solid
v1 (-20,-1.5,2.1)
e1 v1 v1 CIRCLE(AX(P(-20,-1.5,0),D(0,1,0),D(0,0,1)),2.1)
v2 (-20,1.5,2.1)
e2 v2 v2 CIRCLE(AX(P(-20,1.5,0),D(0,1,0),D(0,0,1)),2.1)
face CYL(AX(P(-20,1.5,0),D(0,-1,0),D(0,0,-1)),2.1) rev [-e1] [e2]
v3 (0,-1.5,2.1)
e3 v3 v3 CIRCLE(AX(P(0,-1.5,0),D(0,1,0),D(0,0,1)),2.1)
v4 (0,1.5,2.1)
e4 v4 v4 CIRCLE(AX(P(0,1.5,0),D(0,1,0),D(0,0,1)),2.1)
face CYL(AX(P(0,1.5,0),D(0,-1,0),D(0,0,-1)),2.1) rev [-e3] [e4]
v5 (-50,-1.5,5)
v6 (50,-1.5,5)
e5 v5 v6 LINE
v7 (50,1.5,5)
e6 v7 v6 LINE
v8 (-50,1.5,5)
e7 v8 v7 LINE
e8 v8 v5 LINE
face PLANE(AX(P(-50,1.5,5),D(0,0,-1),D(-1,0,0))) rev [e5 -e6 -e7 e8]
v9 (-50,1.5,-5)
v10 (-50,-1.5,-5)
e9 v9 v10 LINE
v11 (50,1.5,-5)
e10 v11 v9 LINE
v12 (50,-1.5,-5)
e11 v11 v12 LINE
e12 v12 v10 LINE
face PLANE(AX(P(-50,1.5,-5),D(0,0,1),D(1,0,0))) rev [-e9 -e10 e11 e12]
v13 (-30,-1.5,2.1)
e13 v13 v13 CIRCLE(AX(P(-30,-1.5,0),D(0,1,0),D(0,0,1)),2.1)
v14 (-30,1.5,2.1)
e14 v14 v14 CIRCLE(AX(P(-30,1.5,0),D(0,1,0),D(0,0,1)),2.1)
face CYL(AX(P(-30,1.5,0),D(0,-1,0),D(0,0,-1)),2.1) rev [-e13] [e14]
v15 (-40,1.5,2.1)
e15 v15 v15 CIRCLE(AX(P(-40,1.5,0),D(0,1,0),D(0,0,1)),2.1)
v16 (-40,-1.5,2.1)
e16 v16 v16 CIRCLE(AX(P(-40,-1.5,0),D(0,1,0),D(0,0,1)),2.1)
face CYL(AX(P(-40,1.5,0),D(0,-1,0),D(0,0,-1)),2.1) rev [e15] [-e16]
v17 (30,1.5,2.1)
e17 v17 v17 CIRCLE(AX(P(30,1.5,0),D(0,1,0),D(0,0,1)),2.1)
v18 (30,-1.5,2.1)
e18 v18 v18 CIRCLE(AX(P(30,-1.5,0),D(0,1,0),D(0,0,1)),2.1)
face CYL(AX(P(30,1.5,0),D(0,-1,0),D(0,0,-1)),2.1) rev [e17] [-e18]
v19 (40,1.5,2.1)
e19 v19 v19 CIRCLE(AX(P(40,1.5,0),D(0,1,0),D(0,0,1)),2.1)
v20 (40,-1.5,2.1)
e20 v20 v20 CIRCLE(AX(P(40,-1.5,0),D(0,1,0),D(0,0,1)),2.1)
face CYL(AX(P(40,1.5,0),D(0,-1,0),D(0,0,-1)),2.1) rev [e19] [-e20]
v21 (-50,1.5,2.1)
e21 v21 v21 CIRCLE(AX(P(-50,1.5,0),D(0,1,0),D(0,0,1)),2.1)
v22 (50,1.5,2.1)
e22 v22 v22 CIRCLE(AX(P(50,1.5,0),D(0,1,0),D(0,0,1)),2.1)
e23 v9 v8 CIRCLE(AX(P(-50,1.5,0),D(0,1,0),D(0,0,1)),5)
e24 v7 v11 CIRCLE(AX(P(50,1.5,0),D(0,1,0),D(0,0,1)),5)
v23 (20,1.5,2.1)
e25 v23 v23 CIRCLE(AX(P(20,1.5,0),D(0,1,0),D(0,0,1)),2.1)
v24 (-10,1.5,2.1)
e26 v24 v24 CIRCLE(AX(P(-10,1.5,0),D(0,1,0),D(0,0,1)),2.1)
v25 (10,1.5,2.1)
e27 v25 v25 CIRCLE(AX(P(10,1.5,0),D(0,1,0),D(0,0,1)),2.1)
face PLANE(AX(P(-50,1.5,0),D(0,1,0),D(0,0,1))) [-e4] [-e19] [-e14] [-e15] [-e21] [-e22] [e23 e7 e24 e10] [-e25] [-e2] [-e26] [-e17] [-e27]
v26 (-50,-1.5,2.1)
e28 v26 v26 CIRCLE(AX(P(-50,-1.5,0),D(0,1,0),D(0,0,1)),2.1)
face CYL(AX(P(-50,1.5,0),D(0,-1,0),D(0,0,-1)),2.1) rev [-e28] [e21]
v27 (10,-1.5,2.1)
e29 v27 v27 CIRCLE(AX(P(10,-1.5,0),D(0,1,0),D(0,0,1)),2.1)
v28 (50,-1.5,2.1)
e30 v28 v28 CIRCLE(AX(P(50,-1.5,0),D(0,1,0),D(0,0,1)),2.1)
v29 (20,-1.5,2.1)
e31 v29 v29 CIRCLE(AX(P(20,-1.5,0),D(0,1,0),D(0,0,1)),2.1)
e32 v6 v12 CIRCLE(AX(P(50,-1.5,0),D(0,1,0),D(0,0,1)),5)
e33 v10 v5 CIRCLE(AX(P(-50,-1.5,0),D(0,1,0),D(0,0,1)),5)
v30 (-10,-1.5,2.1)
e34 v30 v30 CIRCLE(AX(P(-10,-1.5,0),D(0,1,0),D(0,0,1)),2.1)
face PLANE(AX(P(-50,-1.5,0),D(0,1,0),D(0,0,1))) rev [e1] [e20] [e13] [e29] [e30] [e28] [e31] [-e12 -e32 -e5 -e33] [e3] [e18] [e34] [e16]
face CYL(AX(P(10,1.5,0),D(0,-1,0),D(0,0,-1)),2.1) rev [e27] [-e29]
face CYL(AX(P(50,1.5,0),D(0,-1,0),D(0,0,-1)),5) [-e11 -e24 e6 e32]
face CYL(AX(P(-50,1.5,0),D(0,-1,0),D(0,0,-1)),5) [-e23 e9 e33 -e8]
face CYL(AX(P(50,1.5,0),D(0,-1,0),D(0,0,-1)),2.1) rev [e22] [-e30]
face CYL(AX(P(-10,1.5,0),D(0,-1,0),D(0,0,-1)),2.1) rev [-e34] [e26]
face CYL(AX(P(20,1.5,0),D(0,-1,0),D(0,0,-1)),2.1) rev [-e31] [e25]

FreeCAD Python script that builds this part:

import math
import FreeCAD as App
import Part
import Sketcher
from FreeCAD import Vector
Q = App.Units.Quantity

doc = App.newDocument("Part")
body = doc.addObject("PartDesign::Body", "Body")

# Sketch on XZ plane
sketch1 = body.newObject("Sketcher::SketchObject", "Sketch")
sketch1.AttachmentSupport = (doc.getObject("XZ_Plane"), [""])
sketch1.MapMode = "FlatFace"
sketch1.addGeometry(Part.LineSegment(Vector(50, -5, 0), Vector(-50, -5, 0)), False)
sketch1.addGeometry(Part.ArcOfCircle(Part.Circle(Vector(-50, 0, 0), Vector(0, 0, 1), 5), math.radians(90), math.radians(270)), False)
sketch1.addGeometry(Part.LineSegment(Vector(-50, 5, 0), Vector(50, 5, 0)), False)
sketch1.addGeometry(Part.ArcOfCircle(Part.Circle(Vector(50, 0, 0), Vector(0, 0, 1), 5), math.radians(-90), math.radians(90)), False)
sketch1.addGeometry(Part.Circle(Vector(50, 0, 0), Vector(0, 0, 1), 2.1), False)
sketch1.addGeometry(Part.Circle(Vector(40, 0, 0), Vector(0, 0, 1), 2.1), False)
sketch1.addGeometry(Part.Circle(Vector(30, 0, 0), Vector(0, 0, 1), 2.1), False)
sketch1.addGeometry(Part.Circle(Vector(20, 0, 0), Vector(0, 0, 1), 2.1), False)
sketch1.addGeometry(Part.Circle(Vector(10, 0, 0), Vector(0, 0, 1), 2.1), False)
sketch1.addGeometry(Part.Circle(Vector(0, 0, 0), Vector(0, 0, 1), 2.1), False)
sketch1.addGeometry(Part.Circle(Vector(-10, 0, 0), Vector(0, 0, 1), 2.1), False)
sketch1.addGeometry(Part.Circle(Vector(-20, 0, 0), Vector(0, 0, 1), 2.1), False)
sketch1.addGeometry(Part.Circle(Vector(-30, 0, 0), Vector(0, 0, 1), 2.1), False)
sketch1.addGeometry(Part.Circle(Vector(-40, 0, 0), Vector(0, 0, 1), 2.1), False)
sketch1.addGeometry(Part.Circle(Vector(-50, 0, 0), Vector(0, 0, 1), 2.1), False)
sketch1.addConstraint(Sketcher.Constraint("Tangent", 0, 2, 1, 2))
sketch1.addConstraint(Sketcher.Constraint("Tangent", 1, 1, 2, 1))
sketch1.addConstraint(Sketcher.Constraint("Tangent", 2, 2, 3, 2))
sketch1.addConstraint(Sketcher.Constraint("Tangent", 3, 1, 0, 1))
sketch1.addConstraint(Sketcher.Constraint("Horizontal", 0))
sketch1.addConstraint(Sketcher.Constraint("Horizontal", 2))
sketch1.addConstraint(Sketcher.Constraint("Coincident", 9, 3, -1, 1))
sketch1.addConstraint(Sketcher.Constraint("Coincident", 4, 3, 3, 3))
sketch1.addConstraint(Sketcher.Constraint("Coincident", 14, 3, 1, 3))
sketch1.addConstraint(Sketcher.Constraint("Equal", 4, 5))
sketch1.addConstraint(Sketcher.Constraint("Equal", 5, 6))
sketch1.addConstraint(Sketcher.Constraint("Equal", 6, 7))
sketch1.addConstraint(Sketcher.Constraint("Equal", 7, 8))
sketch1.addConstraint(Sketcher.Constraint("Equal", 8, 9))
sketch1.addConstraint(Sketcher.Constraint("Equal", 9, 10))
sketch1.addConstraint(Sketcher.Constraint("Equal", 10, 11))
sketch1.addConstraint(Sketcher.Constraint("Equal", 11, 12))
sketch1.addConstraint(Sketcher.Constraint("Equal", 12, 13))
sketch1.addConstraint(Sketcher.Constraint("Equal", 13, 14))
sketch1.addConstraint(Sketcher.Constraint("Symmetric", 1, 3, 3, 3, -1, 1))
sketch1.addConstraint(Sketcher.Constraint("Symmetric", 8, 3, 10, 3, -1, 1))
sketch1.addConstraint(Sketcher.Constraint("Symmetric", 7, 3, 11, 3, -1, 1))
sketch1.addConstraint(Sketcher.Constraint("Symmetric", 6, 3, 12, 3, -1, 1))
sketch1.addConstraint(Sketcher.Constraint("Symmetric", 5, 3, 13, 3, -1, 1))
sketch1.addConstraint(Sketcher.Constraint("PointOnObject", 5, 3, -1))
sketch1.addConstraint(Sketcher.Constraint("PointOnObject", 6, 3, -1))
sketch1.addConstraint(Sketcher.Constraint("PointOnObject", 7, 3, -1))
sketch1.addConstraint(Sketcher.Constraint("PointOnObject", 8, 3, -1))
sketch1.addConstraint(Sketcher.Constraint("Radius", 1, Q("5 mm")))
sketch1.addConstraint(Sketcher.Constraint("Diameter", 4, Q("4.2 mm")))
sketch1.addConstraint(Sketcher.Constraint("DistanceX", 0, 2, 0, 1, Q("100 mm")))
sketch1.addConstraint(Sketcher.Constraint("DistanceX", -1, 1, 5, 3, Q("40 mm")))
sketch1.addConstraint(Sketcher.Constraint("DistanceX", -1, 1, 6, 3, Q("30 mm")))
sketch1.addConstraint(Sketcher.Constraint("DistanceX", -1, 1, 7, 3, Q("20 mm")))
sketch1.addConstraint(Sketcher.Constraint("DistanceX", -1, 1, 8, 3, Q("10 mm")))
pad1 = body.newObject("PartDesign::Pad", "Pad")
pad1.Profile = sketch1
pad1.Length = 3
pad1.Midplane = True

doc.recompute()
